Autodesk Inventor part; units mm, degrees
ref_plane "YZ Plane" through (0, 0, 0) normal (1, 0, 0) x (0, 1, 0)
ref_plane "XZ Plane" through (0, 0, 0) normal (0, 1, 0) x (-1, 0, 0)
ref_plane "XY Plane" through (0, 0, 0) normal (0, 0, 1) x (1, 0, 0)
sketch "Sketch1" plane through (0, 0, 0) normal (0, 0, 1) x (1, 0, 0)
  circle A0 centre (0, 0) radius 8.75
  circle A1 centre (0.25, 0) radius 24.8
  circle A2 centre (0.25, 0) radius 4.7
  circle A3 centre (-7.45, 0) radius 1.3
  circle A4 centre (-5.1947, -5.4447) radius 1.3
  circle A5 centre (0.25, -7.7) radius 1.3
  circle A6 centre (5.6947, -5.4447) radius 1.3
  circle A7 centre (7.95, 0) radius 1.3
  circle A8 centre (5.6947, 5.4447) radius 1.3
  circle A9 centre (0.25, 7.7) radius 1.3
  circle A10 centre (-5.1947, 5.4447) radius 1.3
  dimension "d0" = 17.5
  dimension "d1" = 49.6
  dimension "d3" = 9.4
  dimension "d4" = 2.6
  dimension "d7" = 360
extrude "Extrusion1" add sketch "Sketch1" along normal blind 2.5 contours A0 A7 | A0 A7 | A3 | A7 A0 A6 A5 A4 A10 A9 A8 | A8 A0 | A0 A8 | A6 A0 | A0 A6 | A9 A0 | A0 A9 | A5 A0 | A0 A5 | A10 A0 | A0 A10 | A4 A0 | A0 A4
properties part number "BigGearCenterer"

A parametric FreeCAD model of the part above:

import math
import FreeCAD as App
import Part
import Sketcher

doc = App.newDocument("Part")
body = doc.addObject("PartDesign::Body", "Body")

# Sketch on XY plane
sketch1 = body.newObject("Sketcher::SketchObject", "Sketch")
sketch1.AttachmentSupport = (doc.getObject("XY_Plane"), [""])
sketch1.MapMode = "FlatFace"
sketch1.addGeometry([
    Part.ArcOfCircle(Part.Circle(App.Vector(8, 0, 0), App.Vector(0, 0, 1), 1.3), math.radians(-56), math.radians(56)),  # 0
    Part.ArcOfCircle(Part.Circle(App.Vector(0, 0, 0), App.Vector(0, 0, 1), 8.8), math.radians(7), math.radians(37)),  # 1
    Part.ArcOfCircle(Part.Circle(App.Vector(5.7, 5.4, 0), App.Vector(0, 0, 1), 1.3), math.radians(-8), math.radians(95)),  # 2
    Part.ArcOfCircle(Part.Circle(App.Vector(0, 0, 0), App.Vector(0, 0, 1), 8.8), math.radians(50), math.radians(83)),  # 3
    Part.ArcOfCircle(Part.Circle(App.Vector(0.2, 7.7, 0), App.Vector(0, 0, 1), 1.3), math.radians(49), math.radians(127)),  # 4
    Part.ArcOfCircle(Part.Circle(App.Vector(0, 0, 0), App.Vector(0, 0, 1), 8.8), math.radians(94), math.radians(131)),  # 5
    Part.ArcOfCircle(Part.Circle(App.Vector(-5.2, 5.4, 0), App.Vector(0, 0, 1), 1.3), math.radians(112), math.radians(155)),  # 6
    Part.ArcOfCircle(Part.Circle(App.Vector(0, 0, 0), App.Vector(0, 0, 1), 8.8), math.radians(137), math.radians(223)),  # 7
    Part.ArcOfCircle(Part.Circle(App.Vector(-5.2, -5.4, 0), App.Vector(0, 0, 1), 1.3), math.radians(-155), math.radians(-112)),  # 8
    Part.ArcOfCircle(Part.Circle(App.Vector(0, 0, 0), App.Vector(0, 0, 1), 8.8), math.radians(-131), math.radians(-94)),  # 9
    Part.ArcOfCircle(Part.Circle(App.Vector(0.2, -7.7, 0), App.Vector(0, 0, 1), 1.3), math.radians(-127), math.radians(-49)),  # 10
    Part.ArcOfCircle(Part.Circle(App.Vector(0, 0, 0), App.Vector(0, 0, 1), 8.8), math.radians(-83), math.radians(-50)),  # 11
    Part.ArcOfCircle(Part.Circle(App.Vector(5.7, -5.4, 0), App.Vector(0, 0, 1), 1.3), math.radians(-95), math.radians(8)),  # 12
    Part.ArcOfCircle(Part.Circle(App.Vector(0, 0, 0), App.Vector(0, 0, 1), 8.8), math.radians(-37), math.radians(-7)),  # 13
    Part.Circle(App.Vector(0.2, 0, 0), App.Vector(0, 0, 1), 4.7),  # 14
], False)
sketch1.addConstraint([
    Sketcher.Constraint("Coincident", 0, 2, 1, 1),
    Sketcher.Constraint("Coincident", 1, 2, 2, 1),
    Sketcher.Constraint("Coincident", 2, 2, 3, 1),
    Sketcher.Constraint("Coincident", 3, 2, 4, 1),
    Sketcher.Constraint("Coincident", 4, 2, 5, 1),
    Sketcher.Constraint("Coincident", 5, 2, 6, 1),
    Sketcher.Constraint("Coincident", 6, 2, 7, 1),
    Sketcher.Constraint("Coincident", 7, 2, 8, 1),
    Sketcher.Constraint("Coincident", 8, 2, 9, 1),
    Sketcher.Constraint("Coincident", 9, 2, 10, 1),
    Sketcher.Constraint("Coincident", 10, 2, 11, 1),
    Sketcher.Constraint("Coincident", 11, 2, 12, 1),
    Sketcher.Constraint("Coincident", 12, 2, 13, 1),
    Sketcher.Constraint("Coincident", 13, 2, 0, 1),
    Sketcher.Constraint("Coincident", 1, 3, -1, 1),
    Sketcher.Constraint("Coincident", 3, 3, -1, 1),
    Sketcher.Constraint("Coincident", 5, 3, -1, 1),
    Sketcher.Constraint("Coincident", 7, 3, -1, 1),
    Sketcher.Constraint("Coincident", 9, 3, -1, 1),
    Sketcher.Constraint("Coincident", 11, 3, -1, 1),
    Sketcher.Constraint("Coincident", 13, 3, -1, 1),
    Sketcher.Constraint("Equal", 0, 2),
    Sketcher.Constraint("Equal", 1, 3),
    Sketcher.Constraint("Equal", 2, 4),
    Sketcher.Constraint("Equal", 3, 5),
    Sketcher.Constraint("Equal", 4, 6),
    Sketcher.Constraint("Equal", 5, 7),
    Sketcher.Constraint("Equal", 6, 8),
    Sketcher.Constraint("Equal", 7, 9),
    Sketcher.Constraint("Equal", 8, 10),
    Sketcher.Constraint("Equal", 9, 11),
    Sketcher.Constraint("Equal", 10, 12),
    Sketcher.Constraint("Equal", 11, 13),
    Sketcher.Constraint("Symmetric", 6, 3, 8, 3, -1),
    Sketcher.Constraint("Symmetric", 4, 3, 10, 3, -1),
    Sketcher.Constraint("Symmetric", 2, 3, 12, 3, -1),
    Sketcher.Constraint("PointOnObject", 0, 3, -1),
    Sketcher.Constraint("PointOnObject", 14, 3, -1),
    Sketcher.Constraint("Horizontal", 2, 3, 6, 3),
    Sketcher.Constraint("Vertical", 10, 3, 14, 3),
    Sketcher.Constraint("Diameter", 14, 9.4),
    Sketcher.Constraint("Radius", 0, 1.3),
    Sketcher.Constraint("Radius", 1, 8.75),
    Sketcher.Constraint("DistanceY", -1, 1, 4, 3, 7.7),
    Sketcher.Constraint("DistanceX", 4, 3, 0, 3, 7.7),
    Sketcher.Constraint("DistanceX", -1, 1, 0, 3, 7.95),
    Sketcher.Constraint("DistanceX", 6, 2, 5, 2, 0.68),
    Sketcher.Constraint("DistanceY", -1, 1, 5, 2, 6.646),
    Sketcher.Constraint("DistanceY", 2, 3, 2, 2, 1.295),
])
pad1 = body.newObject("PartDesign::Pad", "Pad")
pad1.Profile = sketch1
pad1.Length = 2.5

doc.recompute()
